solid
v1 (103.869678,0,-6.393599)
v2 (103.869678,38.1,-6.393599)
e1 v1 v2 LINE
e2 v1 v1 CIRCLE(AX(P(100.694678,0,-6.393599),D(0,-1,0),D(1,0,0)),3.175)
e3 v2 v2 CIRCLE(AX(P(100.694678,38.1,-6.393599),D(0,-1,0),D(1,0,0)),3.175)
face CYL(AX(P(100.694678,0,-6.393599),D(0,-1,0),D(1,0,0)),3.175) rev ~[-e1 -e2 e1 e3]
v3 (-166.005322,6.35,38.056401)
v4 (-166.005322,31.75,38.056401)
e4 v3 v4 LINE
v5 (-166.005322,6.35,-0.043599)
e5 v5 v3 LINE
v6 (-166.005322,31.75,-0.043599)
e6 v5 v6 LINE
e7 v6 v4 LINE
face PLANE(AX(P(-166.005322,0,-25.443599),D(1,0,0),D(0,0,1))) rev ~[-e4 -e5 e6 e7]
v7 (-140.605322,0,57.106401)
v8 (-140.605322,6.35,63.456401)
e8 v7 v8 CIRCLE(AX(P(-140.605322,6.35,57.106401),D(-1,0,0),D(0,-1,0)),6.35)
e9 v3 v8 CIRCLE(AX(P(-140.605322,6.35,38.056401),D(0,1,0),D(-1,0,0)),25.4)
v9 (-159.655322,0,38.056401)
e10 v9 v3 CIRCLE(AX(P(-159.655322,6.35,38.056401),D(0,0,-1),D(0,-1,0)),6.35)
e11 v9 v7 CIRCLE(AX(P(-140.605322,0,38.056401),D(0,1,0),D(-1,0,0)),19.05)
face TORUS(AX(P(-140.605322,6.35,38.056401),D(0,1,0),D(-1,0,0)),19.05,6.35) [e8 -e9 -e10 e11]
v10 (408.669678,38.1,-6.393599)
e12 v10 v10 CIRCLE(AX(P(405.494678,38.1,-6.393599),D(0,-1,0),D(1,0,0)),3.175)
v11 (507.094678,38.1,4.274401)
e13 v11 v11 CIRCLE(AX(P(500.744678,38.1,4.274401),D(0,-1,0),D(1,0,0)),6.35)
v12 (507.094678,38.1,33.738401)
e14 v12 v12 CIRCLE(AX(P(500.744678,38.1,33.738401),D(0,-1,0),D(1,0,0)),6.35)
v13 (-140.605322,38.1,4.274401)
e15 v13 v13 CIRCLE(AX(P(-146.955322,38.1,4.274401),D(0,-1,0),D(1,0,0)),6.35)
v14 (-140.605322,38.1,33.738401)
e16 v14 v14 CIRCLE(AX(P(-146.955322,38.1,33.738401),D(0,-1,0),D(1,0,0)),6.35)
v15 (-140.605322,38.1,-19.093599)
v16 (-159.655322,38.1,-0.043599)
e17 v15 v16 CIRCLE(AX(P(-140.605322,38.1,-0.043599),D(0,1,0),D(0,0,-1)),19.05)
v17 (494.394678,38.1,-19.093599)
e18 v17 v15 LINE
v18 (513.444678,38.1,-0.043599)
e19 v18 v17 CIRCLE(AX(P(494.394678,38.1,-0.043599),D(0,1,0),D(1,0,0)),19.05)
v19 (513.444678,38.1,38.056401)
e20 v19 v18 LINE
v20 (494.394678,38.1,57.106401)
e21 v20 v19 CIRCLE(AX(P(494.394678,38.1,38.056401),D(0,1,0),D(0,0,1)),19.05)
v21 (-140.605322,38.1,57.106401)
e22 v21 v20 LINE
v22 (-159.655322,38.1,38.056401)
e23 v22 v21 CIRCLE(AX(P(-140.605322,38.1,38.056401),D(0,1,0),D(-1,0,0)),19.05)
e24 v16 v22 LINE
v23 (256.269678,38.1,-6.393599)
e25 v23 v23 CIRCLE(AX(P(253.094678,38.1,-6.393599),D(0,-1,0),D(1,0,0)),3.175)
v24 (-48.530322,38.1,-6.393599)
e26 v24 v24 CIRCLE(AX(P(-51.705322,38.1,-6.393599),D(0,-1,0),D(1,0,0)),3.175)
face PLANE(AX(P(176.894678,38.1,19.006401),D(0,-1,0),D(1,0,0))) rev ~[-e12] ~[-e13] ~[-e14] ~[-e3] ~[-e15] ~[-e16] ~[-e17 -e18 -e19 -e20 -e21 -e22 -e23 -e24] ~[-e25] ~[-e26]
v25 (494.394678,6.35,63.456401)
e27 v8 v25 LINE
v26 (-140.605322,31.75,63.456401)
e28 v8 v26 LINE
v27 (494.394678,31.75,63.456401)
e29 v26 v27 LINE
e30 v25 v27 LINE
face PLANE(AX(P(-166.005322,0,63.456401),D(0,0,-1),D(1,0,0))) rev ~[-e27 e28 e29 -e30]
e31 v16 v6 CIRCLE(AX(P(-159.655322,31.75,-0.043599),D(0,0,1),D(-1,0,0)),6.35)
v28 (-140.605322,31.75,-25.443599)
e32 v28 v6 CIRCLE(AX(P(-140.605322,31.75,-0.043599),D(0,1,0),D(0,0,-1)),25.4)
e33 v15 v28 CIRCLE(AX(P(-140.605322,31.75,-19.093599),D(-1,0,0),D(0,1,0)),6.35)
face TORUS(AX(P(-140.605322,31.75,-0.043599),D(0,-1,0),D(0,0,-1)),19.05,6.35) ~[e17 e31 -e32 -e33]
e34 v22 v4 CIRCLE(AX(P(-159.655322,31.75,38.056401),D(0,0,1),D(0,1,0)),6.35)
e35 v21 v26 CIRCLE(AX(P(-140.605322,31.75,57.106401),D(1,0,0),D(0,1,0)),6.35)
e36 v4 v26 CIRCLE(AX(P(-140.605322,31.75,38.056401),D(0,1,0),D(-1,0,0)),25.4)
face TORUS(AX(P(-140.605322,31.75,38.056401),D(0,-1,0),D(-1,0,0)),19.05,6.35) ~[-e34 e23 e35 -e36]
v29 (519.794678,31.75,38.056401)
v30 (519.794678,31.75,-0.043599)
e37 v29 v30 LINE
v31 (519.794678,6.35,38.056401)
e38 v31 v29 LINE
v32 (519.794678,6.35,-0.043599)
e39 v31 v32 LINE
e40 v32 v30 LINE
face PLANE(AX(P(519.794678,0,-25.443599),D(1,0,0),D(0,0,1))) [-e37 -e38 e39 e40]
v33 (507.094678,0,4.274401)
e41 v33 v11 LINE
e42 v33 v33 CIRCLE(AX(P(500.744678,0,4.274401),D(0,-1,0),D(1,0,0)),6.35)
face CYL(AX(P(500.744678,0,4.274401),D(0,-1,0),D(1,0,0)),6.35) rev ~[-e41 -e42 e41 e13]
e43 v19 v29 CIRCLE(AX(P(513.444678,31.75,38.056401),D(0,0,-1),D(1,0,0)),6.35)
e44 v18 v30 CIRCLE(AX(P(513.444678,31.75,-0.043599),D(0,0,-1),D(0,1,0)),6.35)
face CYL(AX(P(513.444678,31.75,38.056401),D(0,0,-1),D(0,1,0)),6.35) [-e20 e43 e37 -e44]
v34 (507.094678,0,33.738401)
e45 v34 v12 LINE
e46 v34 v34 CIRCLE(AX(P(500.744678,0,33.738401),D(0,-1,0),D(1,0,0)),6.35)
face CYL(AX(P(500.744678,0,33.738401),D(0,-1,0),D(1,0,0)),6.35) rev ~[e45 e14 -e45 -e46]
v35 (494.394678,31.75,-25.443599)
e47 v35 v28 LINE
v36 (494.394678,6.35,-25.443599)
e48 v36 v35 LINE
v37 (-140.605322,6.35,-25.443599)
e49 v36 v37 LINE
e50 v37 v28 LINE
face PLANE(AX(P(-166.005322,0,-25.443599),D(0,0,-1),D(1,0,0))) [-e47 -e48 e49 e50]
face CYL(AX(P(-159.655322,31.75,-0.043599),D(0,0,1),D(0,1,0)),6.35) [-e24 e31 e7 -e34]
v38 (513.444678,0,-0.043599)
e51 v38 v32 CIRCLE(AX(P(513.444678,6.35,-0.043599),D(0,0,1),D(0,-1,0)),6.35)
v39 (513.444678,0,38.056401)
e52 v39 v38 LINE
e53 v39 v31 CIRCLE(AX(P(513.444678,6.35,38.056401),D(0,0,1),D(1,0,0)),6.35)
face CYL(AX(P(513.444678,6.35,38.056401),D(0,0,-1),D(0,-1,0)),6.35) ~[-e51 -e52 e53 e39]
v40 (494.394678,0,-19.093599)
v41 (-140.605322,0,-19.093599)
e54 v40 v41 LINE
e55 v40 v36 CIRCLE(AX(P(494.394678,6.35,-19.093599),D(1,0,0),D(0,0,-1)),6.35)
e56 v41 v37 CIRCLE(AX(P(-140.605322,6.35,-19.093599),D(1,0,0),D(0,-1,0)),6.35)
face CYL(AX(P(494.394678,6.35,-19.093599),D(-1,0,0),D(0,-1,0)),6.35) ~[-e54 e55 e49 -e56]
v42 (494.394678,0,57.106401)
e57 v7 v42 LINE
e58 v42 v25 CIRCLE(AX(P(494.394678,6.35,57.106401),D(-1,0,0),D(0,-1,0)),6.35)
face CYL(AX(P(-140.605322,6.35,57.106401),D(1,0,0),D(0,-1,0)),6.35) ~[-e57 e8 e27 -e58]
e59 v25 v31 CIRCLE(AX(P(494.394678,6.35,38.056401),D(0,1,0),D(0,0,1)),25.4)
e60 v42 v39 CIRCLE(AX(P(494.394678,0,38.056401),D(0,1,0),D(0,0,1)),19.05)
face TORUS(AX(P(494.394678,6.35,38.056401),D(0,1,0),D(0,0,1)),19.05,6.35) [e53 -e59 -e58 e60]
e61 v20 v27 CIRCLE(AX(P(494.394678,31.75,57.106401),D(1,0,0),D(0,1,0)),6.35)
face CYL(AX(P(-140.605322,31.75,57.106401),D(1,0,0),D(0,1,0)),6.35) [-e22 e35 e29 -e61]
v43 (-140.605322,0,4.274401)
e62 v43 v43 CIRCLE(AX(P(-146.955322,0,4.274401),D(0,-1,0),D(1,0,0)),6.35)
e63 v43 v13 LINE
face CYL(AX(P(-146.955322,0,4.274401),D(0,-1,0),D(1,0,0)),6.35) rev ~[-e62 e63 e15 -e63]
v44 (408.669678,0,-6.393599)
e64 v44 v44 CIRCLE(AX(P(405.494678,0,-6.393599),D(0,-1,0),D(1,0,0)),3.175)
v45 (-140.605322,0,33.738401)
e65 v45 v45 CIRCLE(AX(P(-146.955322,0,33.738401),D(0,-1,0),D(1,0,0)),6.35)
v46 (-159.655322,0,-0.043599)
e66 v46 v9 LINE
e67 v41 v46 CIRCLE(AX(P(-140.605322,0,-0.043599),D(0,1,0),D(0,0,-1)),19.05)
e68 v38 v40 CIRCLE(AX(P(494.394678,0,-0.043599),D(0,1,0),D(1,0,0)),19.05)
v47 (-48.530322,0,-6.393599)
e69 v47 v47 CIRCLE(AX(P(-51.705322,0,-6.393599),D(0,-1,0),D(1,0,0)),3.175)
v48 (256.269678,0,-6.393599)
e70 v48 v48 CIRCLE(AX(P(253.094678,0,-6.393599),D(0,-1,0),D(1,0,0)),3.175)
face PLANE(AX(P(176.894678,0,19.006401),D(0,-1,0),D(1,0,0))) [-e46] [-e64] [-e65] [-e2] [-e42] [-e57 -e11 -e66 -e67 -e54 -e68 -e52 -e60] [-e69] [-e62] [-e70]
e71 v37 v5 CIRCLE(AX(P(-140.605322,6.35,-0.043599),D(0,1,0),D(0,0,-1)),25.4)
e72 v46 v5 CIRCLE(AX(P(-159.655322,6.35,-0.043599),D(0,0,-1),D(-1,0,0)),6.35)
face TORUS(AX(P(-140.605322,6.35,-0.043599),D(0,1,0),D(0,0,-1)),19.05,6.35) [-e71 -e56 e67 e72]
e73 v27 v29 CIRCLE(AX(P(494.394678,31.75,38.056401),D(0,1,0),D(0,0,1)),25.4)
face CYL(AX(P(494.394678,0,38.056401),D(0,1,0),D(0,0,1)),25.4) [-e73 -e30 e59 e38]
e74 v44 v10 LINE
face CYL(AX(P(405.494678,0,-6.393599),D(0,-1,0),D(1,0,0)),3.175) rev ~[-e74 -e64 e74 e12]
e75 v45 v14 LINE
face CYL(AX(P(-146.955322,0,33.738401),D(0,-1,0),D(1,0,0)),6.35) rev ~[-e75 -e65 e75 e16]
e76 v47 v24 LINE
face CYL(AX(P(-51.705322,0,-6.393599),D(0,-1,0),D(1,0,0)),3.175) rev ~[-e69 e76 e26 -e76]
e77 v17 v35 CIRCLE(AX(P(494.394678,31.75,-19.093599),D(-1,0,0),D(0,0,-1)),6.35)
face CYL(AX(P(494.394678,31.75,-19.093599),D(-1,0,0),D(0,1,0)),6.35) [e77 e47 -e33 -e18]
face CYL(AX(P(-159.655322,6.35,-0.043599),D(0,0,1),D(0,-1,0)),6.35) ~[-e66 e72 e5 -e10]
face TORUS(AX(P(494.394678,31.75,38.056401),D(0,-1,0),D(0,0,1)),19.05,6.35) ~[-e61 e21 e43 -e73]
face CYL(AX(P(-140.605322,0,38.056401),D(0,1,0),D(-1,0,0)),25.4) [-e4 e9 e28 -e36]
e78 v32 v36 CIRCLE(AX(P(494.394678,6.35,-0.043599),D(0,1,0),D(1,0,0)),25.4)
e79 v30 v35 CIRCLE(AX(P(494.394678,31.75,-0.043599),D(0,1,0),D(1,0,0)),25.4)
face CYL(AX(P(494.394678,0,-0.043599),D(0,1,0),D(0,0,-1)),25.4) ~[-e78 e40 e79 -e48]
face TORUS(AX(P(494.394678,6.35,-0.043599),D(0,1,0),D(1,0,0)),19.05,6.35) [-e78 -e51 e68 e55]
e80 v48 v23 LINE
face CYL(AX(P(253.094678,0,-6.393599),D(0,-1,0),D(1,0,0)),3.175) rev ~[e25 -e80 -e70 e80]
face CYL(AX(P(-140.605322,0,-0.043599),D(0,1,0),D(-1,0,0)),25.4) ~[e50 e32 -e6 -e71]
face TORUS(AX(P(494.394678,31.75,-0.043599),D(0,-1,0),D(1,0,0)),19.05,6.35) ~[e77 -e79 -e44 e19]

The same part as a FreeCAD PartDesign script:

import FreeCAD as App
import Part
import Sketcher

V = App.Vector
Q = App.Units.Quantity


def edges_at(feature, points):
    """Names of the edges that pass closest to the given points."""
    edges = feature.Shape.Edges
    near = lambda p: min(range(len(edges)), key=lambda i: edges[i].distToShape(Part.Vertex(*p))[0])
    return sorted({f"Edge{near(p) + 1}" for p in points})


def add_polygon(sketch, points):
    """Adds a closed chain of lines whose ends are joined by coincident constraints."""
    first, n = sketch.GeometryCount, len(points)
    for a, b in zip(points, points[1:] + points[:1]):
        sketch.addGeometry(Part.LineSegment(App.Vector(*a, 0), App.Vector(*b, 0)), False)
    for i in range(n):
        sketch.addConstraint(Sketcher.Constraint("Coincident", first + i, 2, first + (i + 1) % n, 1))

doc = App.newDocument("Part")
body = doc.addObject("PartDesign::Body", "Body")

# Sketch on XZ plane
sketch1 = body.newObject("Sketcher::SketchObject", "Sketch")
sketch1.AttachmentSupport = (doc.getObject("XZ_Plane"), [""])
sketch1.MapMode = "FlatFace"
add_polygon(sketch1, [(-166, 63.5), (-166, -25.4), (519.8, -25.4), (519.8, 63.5)])  # lines 0-3
sketch1.addGeometry(Part.Circle(V(-51.7, -6.4, 0), V(0, 0, 1), 3.2), False)  # 4
sketch1.addGeometry(Part.Circle(V(100.7, -6.4, 0), V(0, 0, 1), 3.2), False)  # 5
sketch1.addGeometry(Part.Circle(V(-147, 4.3, 0), V(0, 0, 1), 6.3), False)  # 6
sketch1.addGeometry(Part.Circle(V(253.1, -6.4, 0), V(0, 0, 1), 3.2), False)  # 7
sketch1.addGeometry(Part.Circle(V(405.5, -6.4, 0), V(0, 0, 1), 3.2), False)  # 8
sketch1.addGeometry(Part.Circle(V(500.7, 4.3, 0), V(0, 0, 1), 6.3), False)  # 9
sketch1.addGeometry(Part.Circle(V(-147, 33.7, 0), V(0, 0, 1), 6.3), False)  # 10
sketch1.addGeometry(Part.Circle(V(500.7, 33.7, 0), V(0, 0, 1), 6.3), False)  # 11
sketch1.addConstraint(Sketcher.Constraint("Vertical", 0))
sketch1.addConstraint(Sketcher.Constraint("Horizontal", 1))
sketch1.addConstraint(Sketcher.Constraint("Vertical", 2))
sketch1.addConstraint(Sketcher.Constraint("Horizontal", 3))
sketch1.addConstraint(Sketcher.Constraint("Equal", 4, 5))
sketch1.addConstraint(Sketcher.Constraint("Equal", 5, 7))
sketch1.addConstraint(Sketcher.Constraint("Equal", 7, 8))
sketch1.addConstraint(Sketcher.Constraint("Equal", 6, 9))
sketch1.addConstraint(Sketcher.Constraint("Equal", 9, 10))
sketch1.addConstraint(Sketcher.Constraint("Equal", 10, 11))
sketch1.addConstraint(Sketcher.Constraint("Horizontal", 4, 3, 5, 3))
sketch1.addConstraint(Sketcher.Constraint("Horizontal", 5, 3, 7, 3))
sketch1.addConstraint(Sketcher.Constraint("Horizontal", 7, 3, 8, 3))
sketch1.addConstraint(Sketcher.Constraint("Horizontal", 6, 3, 9, 3))
sketch1.addConstraint(Sketcher.Constraint("Horizontal", 10, 3, 11, 3))
sketch1.addConstraint(Sketcher.Constraint("Vertical", 6, 3, 10, 3))
sketch1.addConstraint(Sketcher.Constraint("Vertical", 9, 3, 11, 3))
sketch1.addConstraint(Sketcher.Constraint("Diameter", 6, Q("0.5 in")))
sketch1.addConstraint(Sketcher.Constraint("Diameter", 4, Q("0.25 in")))
sketch1.addConstraint(Sketcher.Constraint("DistanceX", 1, 1, 1, 2, Q("27 in")))
sketch1.addConstraint(Sketcher.Constraint("DistanceY", 0, 2, 0, 1, Q("3.5 in")))
sketch1.addConstraint(Sketcher.Constraint("DistanceX", 4, 3, 5, 3, Q("6 in")))
sketch1.addConstraint(Sketcher.Constraint("DistanceX", 5, 3, 7, 3, Q("6 in")))
sketch1.addConstraint(Sketcher.Constraint("DistanceX", 7, 3, 8, 3, Q("6 in")))
sketch1.addConstraint(Sketcher.Constraint("DistanceX", 6, 3, 9, 3, Q("25.5 in")))
sketch1.addConstraint(Sketcher.Constraint("DistanceX", 0, 2, 4, 3, Q("4.5 in")))
sketch1.addConstraint(Sketcher.Constraint("DistanceX", 6, 3, 4, 3, Q("3.75 in")))
sketch1.addConstraint(Sketcher.Constraint("DistanceY", 4, 3, 6, 3, Q("0.42 in")))
sketch1.addConstraint(Sketcher.Constraint("DistanceY", 6, 3, 10, 3, Q("1.16 in")))
sketch1.addConstraint(Sketcher.Constraint("DistanceY", 0, 2, 6, 3, Q("1.17 in")))
sketch1.addConstraint(Sketcher.Constraint("DistanceY", 4, 3, -1, 1, 6.393599))
sketch1.addConstraint(Sketcher.Constraint("DistanceX", 6, 3, -1, 1, 146.955322))
pad1 = body.newObject("PartDesign::Pad", "Pad")
pad1.Profile = sketch1
pad1.Length = Q("1.5 in")
pad1.Reversed = True
doc.recompute()

fillet = body.newObject("PartDesign::Fillet", "Fillet")
fillet.Base = (pad1, edges_at(pad1, [
    (519.795, 19.05, 63.456),
    (519.795, 19.05, -25.444),
    (-166.005, 19.05, 63.456),
    (-166.005, 19.05, -25.444),
]))
fillet.Radius = Q("1 in")
doc.recompute()

fillet2 = body.newObject("PartDesign::Fillet", "Fillet001")
fillet2.Base = (fillet, edges_at(fillet, [(176.895, 0, 63.456), (176.895, 38.1, 63.456)]))
fillet2.Radius = Q("0.25 in")

doc.recompute()
